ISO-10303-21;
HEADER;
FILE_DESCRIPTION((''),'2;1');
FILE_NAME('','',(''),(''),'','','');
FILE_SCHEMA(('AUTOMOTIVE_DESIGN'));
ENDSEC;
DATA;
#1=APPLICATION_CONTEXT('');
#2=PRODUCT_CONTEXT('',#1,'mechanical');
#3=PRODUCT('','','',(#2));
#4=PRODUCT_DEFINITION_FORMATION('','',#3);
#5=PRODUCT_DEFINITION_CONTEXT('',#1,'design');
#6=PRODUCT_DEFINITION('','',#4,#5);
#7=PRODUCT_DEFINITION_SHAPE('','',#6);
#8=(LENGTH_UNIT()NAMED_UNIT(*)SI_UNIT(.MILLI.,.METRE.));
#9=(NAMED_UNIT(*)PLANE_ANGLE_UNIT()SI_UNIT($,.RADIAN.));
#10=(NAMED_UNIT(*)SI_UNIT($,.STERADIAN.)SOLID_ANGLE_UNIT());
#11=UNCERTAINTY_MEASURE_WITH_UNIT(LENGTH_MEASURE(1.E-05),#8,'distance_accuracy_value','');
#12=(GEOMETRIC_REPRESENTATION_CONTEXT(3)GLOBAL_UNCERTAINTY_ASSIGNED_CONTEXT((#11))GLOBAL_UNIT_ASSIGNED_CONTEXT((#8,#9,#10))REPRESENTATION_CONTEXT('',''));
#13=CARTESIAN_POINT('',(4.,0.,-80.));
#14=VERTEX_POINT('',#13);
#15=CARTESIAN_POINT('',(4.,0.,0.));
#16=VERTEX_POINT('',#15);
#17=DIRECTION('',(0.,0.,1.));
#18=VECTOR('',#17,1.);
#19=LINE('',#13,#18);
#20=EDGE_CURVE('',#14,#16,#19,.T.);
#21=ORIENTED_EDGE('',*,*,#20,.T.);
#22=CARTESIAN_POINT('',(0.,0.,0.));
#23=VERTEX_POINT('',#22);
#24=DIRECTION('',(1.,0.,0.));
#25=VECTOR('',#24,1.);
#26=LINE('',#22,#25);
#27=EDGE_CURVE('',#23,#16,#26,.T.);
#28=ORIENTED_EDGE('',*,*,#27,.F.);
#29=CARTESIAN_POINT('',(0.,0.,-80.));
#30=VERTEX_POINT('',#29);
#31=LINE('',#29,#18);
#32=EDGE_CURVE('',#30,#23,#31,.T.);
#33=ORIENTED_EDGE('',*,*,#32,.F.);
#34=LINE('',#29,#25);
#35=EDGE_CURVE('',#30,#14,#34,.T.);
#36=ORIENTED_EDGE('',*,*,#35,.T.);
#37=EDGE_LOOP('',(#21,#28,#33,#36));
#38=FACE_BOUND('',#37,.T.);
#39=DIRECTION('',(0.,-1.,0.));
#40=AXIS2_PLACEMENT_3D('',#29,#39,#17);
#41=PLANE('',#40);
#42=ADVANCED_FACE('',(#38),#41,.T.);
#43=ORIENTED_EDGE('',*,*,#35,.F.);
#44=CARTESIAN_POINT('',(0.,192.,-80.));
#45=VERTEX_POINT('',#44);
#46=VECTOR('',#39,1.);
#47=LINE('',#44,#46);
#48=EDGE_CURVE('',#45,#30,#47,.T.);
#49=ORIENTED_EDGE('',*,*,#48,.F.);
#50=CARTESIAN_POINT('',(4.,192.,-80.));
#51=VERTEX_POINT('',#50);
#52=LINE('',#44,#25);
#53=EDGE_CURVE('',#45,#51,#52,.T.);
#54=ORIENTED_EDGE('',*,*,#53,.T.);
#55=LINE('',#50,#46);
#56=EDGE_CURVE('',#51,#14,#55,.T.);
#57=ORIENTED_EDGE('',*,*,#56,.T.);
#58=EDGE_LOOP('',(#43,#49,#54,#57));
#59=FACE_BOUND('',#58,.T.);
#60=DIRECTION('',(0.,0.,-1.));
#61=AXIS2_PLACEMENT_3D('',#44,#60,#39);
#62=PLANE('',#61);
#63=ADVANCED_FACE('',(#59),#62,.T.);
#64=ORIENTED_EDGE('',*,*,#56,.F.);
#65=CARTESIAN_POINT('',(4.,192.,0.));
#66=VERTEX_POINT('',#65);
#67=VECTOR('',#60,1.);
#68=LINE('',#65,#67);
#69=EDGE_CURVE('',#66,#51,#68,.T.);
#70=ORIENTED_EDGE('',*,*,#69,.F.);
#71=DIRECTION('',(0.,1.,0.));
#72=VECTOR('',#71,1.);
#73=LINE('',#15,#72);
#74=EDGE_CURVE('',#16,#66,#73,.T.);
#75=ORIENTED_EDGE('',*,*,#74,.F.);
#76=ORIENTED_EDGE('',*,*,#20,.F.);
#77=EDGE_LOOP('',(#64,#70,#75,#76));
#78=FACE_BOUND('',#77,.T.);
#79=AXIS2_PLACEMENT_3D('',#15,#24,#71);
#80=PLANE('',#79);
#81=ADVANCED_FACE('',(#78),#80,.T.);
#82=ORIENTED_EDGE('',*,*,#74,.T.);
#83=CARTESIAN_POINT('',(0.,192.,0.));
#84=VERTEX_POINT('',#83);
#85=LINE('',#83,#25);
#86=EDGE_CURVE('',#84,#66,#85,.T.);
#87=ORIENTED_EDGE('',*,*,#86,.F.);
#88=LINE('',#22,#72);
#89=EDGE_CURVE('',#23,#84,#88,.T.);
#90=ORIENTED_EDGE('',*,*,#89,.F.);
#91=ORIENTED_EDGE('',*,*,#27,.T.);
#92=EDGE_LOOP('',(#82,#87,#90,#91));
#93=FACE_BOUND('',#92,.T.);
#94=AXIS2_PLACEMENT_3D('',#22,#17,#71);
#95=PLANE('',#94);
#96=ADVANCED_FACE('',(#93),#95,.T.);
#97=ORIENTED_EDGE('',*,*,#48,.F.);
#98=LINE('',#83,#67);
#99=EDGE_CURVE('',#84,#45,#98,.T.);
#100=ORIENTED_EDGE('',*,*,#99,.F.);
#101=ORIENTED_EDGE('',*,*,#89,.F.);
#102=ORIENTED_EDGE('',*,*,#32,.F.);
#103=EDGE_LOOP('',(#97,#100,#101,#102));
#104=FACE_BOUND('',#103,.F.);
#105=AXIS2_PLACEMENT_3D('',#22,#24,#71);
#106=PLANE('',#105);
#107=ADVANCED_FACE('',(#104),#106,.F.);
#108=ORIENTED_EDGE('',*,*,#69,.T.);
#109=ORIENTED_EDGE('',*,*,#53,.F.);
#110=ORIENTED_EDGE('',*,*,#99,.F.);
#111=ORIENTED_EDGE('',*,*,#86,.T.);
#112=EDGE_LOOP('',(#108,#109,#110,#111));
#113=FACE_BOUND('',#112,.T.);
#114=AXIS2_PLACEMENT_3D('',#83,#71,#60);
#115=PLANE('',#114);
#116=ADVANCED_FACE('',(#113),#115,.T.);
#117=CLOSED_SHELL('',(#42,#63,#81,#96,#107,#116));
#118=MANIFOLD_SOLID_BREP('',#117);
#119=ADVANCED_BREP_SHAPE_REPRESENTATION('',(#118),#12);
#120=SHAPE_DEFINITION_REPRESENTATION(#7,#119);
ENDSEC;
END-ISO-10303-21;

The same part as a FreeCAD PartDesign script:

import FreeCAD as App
import Part
import Sketcher
from FreeCAD import Vector
Q = App.Units.Quantity

doc = App.newDocument("Part")
body = doc.addObject("PartDesign::Body", "Body")

# Sketch on YZ plane
sketch1 = body.newObject("Sketcher::SketchObject", "Sketch")
sketch1.AttachmentSupport = (doc.getObject("YZ_Plane"), [""])
sketch1.MapMode = "FlatFace"
sketch1.addGeometry(Part.LineSegment(Vector(192, 0, 0), Vector(0, 0, 0)), False)
sketch1.addGeometry(Part.LineSegment(Vector(0, 0, 0), Vector(0, -80, 0)), False)
sketch1.addGeometry(Part.LineSegment(Vector(0, -80, 0), Vector(192, -80, 0)), False)
sketch1.addGeometry(Part.LineSegment(Vector(192, -80, 0), Vector(192, 0, 0)), False)
sketch1.addConstraint(Sketcher.Constraint("Coincident", 0, 2, 1, 1))
sketch1.addConstraint(Sketcher.Constraint("Coincident", 1, 2, 2, 1))
sketch1.addConstraint(Sketcher.Constraint("Coincident", 2, 2, 3, 1))
sketch1.addConstraint(Sketcher.Constraint("Coincident", 3, 2, 0, 1))
sketch1.addConstraint(Sketcher.Constraint("Horizontal", 0))
sketch1.addConstraint(Sketcher.Constraint("Vertical", 1))
sketch1.addConstraint(Sketcher.Constraint("Horizontal", 2))
sketch1.addConstraint(Sketcher.Constraint("Vertical", 3))
sketch1.addConstraint(Sketcher.Constraint("Coincident", 0, 2, -1, 1))
sketch1.addConstraint(Sketcher.Constraint("DistanceX", 0, 2, 0, 1, Q("192 mm")))
sketch1.addConstraint(Sketcher.Constraint("DistanceY", 1, 2, 1, 1, Q("80 mm")))
pad1 = body.newObject("PartDesign::Pad", "Pad")
pad1.Profile = sketch1
pad1.Length = 4

doc.recompute()
